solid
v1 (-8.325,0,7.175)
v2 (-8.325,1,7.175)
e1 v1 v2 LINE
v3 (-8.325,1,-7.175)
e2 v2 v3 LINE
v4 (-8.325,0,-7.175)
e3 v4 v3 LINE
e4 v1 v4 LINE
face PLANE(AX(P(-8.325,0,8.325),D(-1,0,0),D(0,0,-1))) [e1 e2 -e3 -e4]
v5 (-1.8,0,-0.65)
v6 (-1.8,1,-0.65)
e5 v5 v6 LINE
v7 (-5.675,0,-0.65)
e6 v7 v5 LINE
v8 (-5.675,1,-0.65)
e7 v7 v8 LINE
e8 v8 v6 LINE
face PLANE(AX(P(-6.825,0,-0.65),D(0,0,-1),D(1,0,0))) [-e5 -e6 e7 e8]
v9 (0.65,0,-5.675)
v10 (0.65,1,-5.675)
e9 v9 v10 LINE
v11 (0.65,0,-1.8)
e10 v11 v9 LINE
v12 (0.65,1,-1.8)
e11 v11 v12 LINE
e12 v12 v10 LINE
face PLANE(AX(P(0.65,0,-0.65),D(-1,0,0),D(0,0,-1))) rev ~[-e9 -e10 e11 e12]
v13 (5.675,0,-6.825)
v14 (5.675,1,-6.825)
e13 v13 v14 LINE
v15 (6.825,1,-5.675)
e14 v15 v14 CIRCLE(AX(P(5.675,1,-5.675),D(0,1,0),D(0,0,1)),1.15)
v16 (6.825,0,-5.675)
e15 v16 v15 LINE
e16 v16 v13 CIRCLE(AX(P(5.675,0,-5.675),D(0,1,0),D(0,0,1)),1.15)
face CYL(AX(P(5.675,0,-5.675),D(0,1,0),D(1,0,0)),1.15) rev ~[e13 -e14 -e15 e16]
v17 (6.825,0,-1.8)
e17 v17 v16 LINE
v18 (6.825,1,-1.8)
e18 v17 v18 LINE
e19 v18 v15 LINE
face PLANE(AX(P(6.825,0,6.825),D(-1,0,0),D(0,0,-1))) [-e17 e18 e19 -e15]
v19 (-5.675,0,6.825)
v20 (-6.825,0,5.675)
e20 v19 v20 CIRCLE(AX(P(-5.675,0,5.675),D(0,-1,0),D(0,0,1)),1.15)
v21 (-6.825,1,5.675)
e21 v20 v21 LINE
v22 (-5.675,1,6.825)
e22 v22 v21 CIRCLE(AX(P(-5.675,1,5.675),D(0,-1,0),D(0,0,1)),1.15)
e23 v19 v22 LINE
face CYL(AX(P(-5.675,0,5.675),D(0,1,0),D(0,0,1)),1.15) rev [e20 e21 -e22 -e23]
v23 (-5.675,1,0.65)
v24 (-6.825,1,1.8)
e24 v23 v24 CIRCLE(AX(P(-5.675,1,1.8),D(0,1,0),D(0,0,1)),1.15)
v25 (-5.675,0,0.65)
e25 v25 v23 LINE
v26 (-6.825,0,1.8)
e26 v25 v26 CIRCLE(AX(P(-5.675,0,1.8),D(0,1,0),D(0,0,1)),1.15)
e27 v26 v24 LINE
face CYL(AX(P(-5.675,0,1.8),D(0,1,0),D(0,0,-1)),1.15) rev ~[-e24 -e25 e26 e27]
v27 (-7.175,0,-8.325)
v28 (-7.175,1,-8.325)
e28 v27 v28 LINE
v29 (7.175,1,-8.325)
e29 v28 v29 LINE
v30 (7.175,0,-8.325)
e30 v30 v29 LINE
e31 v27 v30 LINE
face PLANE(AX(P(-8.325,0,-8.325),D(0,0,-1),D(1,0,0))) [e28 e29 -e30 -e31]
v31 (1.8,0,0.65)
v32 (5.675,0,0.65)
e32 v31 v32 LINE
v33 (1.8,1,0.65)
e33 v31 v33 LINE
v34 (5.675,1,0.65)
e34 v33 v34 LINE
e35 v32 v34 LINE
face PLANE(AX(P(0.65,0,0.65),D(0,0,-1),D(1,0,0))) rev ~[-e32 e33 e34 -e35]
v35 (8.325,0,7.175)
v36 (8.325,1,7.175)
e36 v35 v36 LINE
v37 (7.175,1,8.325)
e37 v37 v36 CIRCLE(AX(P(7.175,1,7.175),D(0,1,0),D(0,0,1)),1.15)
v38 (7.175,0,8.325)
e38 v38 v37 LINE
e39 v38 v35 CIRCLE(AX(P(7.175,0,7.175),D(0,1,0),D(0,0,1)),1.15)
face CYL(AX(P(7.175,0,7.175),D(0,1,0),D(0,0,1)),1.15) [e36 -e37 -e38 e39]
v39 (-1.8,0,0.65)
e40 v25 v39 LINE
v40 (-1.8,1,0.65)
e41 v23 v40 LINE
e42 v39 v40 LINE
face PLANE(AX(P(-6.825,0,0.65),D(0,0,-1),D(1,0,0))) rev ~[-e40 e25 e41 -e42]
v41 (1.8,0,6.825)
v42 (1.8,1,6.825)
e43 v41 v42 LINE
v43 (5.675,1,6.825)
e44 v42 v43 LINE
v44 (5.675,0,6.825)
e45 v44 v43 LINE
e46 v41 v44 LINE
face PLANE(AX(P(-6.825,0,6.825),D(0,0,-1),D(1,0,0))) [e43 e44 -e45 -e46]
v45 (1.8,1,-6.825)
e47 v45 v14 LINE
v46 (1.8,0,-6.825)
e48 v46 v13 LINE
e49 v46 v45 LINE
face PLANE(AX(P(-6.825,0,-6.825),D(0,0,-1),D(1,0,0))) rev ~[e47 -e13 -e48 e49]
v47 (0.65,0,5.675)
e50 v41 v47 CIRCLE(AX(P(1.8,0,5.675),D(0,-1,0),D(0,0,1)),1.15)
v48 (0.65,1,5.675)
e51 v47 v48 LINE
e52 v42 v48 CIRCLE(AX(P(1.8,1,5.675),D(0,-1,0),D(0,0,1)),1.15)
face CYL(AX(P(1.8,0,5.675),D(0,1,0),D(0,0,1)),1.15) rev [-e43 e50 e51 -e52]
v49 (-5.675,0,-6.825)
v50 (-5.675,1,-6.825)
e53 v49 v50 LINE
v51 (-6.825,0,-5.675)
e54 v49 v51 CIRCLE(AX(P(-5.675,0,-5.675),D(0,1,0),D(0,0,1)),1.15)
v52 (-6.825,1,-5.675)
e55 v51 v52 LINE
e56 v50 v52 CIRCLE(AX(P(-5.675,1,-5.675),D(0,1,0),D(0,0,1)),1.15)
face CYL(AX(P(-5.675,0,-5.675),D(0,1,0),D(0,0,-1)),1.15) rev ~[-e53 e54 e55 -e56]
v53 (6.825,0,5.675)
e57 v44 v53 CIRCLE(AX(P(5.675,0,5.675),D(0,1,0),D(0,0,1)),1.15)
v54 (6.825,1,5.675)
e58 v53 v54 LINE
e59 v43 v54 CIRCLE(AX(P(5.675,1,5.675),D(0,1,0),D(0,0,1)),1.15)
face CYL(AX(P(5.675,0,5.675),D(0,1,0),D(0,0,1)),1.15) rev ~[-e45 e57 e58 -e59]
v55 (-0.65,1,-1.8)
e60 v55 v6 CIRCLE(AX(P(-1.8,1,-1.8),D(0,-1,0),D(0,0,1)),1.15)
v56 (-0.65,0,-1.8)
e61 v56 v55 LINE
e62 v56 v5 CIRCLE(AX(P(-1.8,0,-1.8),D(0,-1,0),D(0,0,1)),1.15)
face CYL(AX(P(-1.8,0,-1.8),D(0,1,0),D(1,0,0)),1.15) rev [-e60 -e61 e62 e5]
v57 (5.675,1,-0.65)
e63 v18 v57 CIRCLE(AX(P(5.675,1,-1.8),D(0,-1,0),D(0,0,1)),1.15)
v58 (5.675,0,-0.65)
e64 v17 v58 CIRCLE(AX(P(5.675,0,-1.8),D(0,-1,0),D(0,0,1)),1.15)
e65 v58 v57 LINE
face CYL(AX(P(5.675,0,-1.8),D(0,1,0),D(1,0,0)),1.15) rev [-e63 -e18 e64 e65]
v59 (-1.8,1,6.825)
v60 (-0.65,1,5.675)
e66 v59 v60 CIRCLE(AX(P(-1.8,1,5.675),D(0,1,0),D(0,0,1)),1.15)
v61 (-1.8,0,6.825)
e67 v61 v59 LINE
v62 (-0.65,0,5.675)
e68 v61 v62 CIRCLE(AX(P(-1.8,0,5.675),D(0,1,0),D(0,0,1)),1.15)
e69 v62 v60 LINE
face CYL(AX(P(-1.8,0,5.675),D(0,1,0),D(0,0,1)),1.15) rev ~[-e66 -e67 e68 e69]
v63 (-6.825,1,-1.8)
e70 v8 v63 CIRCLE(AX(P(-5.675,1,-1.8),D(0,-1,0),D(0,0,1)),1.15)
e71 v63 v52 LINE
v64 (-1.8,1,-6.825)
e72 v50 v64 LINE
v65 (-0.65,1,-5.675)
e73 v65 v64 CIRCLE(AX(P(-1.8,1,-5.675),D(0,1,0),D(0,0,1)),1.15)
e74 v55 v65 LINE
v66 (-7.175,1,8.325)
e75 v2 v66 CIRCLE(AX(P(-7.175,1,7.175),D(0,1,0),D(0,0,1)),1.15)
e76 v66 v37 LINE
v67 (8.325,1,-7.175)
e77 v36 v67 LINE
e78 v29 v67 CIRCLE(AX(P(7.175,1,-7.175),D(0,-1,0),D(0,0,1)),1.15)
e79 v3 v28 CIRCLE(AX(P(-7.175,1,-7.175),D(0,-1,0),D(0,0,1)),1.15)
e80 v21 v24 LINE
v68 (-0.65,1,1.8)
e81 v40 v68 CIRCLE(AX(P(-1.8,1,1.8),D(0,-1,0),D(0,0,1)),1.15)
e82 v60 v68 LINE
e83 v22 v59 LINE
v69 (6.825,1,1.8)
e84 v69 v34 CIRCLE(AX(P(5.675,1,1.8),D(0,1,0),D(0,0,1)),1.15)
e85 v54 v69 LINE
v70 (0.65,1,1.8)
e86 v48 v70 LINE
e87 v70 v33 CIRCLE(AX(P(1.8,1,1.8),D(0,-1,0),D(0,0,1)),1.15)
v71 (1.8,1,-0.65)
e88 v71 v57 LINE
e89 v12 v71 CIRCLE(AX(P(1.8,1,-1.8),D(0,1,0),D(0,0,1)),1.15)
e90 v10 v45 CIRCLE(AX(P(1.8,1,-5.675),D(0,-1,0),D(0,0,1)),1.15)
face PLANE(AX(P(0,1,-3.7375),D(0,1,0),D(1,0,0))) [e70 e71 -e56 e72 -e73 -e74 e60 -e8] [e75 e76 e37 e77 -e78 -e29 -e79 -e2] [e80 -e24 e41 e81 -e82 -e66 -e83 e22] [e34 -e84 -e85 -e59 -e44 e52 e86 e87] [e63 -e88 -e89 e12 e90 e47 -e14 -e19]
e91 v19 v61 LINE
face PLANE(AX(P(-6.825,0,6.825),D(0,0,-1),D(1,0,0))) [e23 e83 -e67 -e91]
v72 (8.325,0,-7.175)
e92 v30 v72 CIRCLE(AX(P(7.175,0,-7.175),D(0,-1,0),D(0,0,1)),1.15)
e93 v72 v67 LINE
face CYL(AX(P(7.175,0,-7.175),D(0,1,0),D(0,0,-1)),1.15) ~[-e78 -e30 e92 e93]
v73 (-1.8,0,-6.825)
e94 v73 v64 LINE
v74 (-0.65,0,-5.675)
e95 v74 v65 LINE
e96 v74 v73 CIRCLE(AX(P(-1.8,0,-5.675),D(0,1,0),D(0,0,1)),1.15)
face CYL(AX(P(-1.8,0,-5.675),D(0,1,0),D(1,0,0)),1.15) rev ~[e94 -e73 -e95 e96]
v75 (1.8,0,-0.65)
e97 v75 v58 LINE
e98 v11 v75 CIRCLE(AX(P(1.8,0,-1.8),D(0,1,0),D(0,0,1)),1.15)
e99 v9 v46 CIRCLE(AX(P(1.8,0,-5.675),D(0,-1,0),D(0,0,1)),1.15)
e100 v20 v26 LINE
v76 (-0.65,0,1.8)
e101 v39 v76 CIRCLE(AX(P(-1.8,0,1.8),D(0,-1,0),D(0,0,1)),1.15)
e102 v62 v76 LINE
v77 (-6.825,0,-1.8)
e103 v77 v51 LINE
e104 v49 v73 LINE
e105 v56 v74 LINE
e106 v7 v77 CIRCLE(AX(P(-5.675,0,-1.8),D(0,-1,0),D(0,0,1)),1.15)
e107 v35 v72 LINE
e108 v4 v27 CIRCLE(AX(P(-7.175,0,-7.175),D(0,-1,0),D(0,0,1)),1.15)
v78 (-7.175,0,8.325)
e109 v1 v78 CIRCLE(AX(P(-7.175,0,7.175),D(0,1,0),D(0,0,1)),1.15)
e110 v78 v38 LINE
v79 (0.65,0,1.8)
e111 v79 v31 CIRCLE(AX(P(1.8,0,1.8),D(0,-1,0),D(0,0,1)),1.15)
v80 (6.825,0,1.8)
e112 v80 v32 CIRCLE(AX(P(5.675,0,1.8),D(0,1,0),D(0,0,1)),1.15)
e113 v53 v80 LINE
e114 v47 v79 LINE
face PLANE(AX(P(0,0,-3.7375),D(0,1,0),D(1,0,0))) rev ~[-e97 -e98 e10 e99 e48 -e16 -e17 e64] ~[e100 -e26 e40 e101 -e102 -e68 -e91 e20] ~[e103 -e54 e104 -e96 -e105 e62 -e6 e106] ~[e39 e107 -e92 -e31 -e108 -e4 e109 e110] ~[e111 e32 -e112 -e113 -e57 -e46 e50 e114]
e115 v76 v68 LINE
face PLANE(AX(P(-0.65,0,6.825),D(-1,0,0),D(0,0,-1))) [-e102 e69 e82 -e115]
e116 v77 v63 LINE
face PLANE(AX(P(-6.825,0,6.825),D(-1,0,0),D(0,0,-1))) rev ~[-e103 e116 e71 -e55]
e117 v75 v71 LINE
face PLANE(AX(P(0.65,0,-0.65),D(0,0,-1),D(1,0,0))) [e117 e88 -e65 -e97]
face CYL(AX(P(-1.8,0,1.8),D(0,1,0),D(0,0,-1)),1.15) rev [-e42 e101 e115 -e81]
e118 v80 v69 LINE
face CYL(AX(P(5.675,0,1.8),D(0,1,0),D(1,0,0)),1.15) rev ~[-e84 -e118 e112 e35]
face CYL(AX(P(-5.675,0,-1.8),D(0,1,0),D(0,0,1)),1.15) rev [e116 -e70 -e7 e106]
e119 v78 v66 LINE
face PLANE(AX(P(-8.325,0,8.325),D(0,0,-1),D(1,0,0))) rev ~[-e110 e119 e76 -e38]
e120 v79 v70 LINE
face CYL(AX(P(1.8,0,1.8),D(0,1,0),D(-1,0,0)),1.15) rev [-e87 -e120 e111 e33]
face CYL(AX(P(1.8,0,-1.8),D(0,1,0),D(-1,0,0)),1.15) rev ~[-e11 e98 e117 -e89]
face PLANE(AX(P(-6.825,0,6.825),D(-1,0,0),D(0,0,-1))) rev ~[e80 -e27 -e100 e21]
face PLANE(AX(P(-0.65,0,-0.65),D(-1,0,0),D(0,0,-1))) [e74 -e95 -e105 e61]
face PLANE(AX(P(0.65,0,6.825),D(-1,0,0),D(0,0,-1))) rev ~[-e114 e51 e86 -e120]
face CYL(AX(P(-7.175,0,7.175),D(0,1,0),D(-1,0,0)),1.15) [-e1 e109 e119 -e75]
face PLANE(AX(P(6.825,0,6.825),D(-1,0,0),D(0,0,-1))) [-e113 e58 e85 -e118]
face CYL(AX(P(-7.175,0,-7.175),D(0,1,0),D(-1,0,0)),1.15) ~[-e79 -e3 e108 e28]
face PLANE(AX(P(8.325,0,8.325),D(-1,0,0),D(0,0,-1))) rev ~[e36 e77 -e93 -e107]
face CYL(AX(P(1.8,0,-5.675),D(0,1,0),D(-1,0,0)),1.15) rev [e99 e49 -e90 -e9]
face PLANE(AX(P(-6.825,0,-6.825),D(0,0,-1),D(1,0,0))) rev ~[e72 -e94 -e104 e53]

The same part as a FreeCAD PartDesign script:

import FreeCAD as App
import Part
import Sketcher
from FreeCAD import Vector


def edges_at(feature, points):
    """Names of the edges that pass closest to the given points."""
    edges = feature.Shape.Edges
    near = lambda p: min(range(len(edges)), key=lambda i: edges[i].distToShape(Part.Vertex(*p))[0])
    return sorted({f"Edge{near(p) + 1}" for p in points})


def add_polygon(sketch, points):
    """Adds a closed chain of lines whose ends are joined by coincident constraints."""
    first, n = sketch.GeometryCount, len(points)
    for a, b in zip(points, points[1:] + points[:1]):
        sketch.addGeometry(Part.LineSegment(App.Vector(*a, 0), App.Vector(*b, 0)), False)
    for i in range(n):
        sketch.addConstraint(Sketcher.Constraint("Coincident", first + i, 2, first + (i + 1) % n, 1))

doc = App.newDocument("Part")
body = doc.addObject("PartDesign::Body", "Body")

# Sketch on XZ plane
sketch1 = body.newObject("Sketcher::SketchObject", "Sketch")
sketch1.AttachmentSupport = (doc.getObject("XZ_Plane"), [""])
sketch1.MapMode = "FlatFace"
add_polygon(sketch1, [(-8, -8), (-8, 8), (8, 8), (8, -8)])  # lines 0-3
add_polygon(sketch1, [(-1, 7), (-7, 7), (-7, 1), (-1, 1)])  # lines 4-7
add_polygon(sketch1, [(7, 7), (1, 7), (1, 1), (7, 1)])  # lines 8-11
add_polygon(sketch1, [(7, -7), (7, -1), (1, -1), (1, -7)])  # lines 12-15
add_polygon(sketch1, [(-7, -7), (-1, -7), (-1, -1), (-7, -1)])  # lines 16-19
sketch1.addConstraint(Sketcher.Constraint("Vertical", 0))
sketch1.addConstraint(Sketcher.Constraint("Horizontal", 1))
sketch1.addConstraint(Sketcher.Constraint("Vertical", 2))
sketch1.addConstraint(Sketcher.Constraint("Horizontal", 3))
sketch1.addConstraint(Sketcher.Constraint("Horizontal", 4))
sketch1.addConstraint(Sketcher.Constraint("Vertical", 5))
sketch1.addConstraint(Sketcher.Constraint("Horizontal", 6))
sketch1.addConstraint(Sketcher.Constraint("Vertical", 7))
sketch1.addConstraint(Sketcher.Constraint("Horizontal", 8))
sketch1.addConstraint(Sketcher.Constraint("Vertical", 9))
sketch1.addConstraint(Sketcher.Constraint("Horizontal", 10))
sketch1.addConstraint(Sketcher.Constraint("Vertical", 11))
sketch1.addConstraint(Sketcher.Constraint("Vertical", 12))
sketch1.addConstraint(Sketcher.Constraint("Horizontal", 13))
sketch1.addConstraint(Sketcher.Constraint("Vertical", 14))
sketch1.addConstraint(Sketcher.Constraint("Horizontal", 15))
sketch1.addConstraint(Sketcher.Constraint("Horizontal", 16))
sketch1.addConstraint(Sketcher.Constraint("Vertical", 17))
sketch1.addConstraint(Sketcher.Constraint("Horizontal", 18))
sketch1.addConstraint(Sketcher.Constraint("Vertical", 19))
sketch1.addConstraint(Sketcher.Constraint("Symmetric", 0, 2, 2, 2, -1, 1))
sketch1.addConstraint(Sketcher.Constraint("Symmetric", 5, 2, 12, 2, -1, 1))
sketch1.addConstraint(Sketcher.Constraint("Symmetric", 7, 2, 14, 2, -1, 1))
sketch1.addConstraint(Sketcher.Constraint("Symmetric", 8, 2, 16, 2, -1, 1))
sketch1.addConstraint(Sketcher.Constraint("Symmetric", 10, 2, 18, 2, -1, 1))
sketch1.addConstraint(Sketcher.Constraint("Symmetric", 7, 2, 8, 2, -2))
sketch1.addConstraint(Sketcher.Constraint("Symmetric", 5, 2, 10, 2, -2))
sketch1.addConstraint(Sketcher.Constraint("Equal", 3, 0))
sketch1.addConstraint(Sketcher.Constraint("Equal", 18, 5))
sketch1.addConstraint(Sketcher.Constraint("DistanceX", 1, 1, 1, 2, 16.65))
sketch1.addConstraint(Sketcher.Constraint("DistanceX", 0, 2, 4, 2, 1.5))
sketch1.addConstraint(Sketcher.Constraint("DistanceY", 4, 2, 0, 2, 1.5))
sketch1.addConstraint(Sketcher.Constraint("DistanceX", 7, 2, 8, 2, 1.3))
pad1 = body.newObject("PartDesign::Pad", "Pad")
pad1.Profile = sketch1
pad1.Length = 1
pad1.Reversed = True
doc.recompute()

fillet = body.newObject("PartDesign::Fillet", "Fillet")
fillet.Base = (pad1, edges_at(pad1, [
    (-6.825, 0.5, 0.65),
    (-6.825, 0.5, 6.825),
    (-0.65, 0.5, 6.825),
    (-0.65, 0.5, 0.65),
    (-8.325, 0.5, 8.325),
    (-8.325, 0.5, -8.325),
    (8.325, 0.5, -8.325),
    (8.325, 0.5, 8.325),
    (-0.65, 0.5, -6.825),
    (-6.825, 0.5, -6.825),
    (-6.825, 0.5, -0.65),
    (-0.65, 0.5, -0.65),
    (0.65, 0.5, 6.825),
    (6.825, 0.5, 6.825),
    (6.825, 0.5, 0.65),
    (0.65, 0.5, 0.65),
    (6.825, 0.5, -0.65),
    (6.825, 0.5, -6.825),
    (0.65, 0.5, -6.825),
    (0.65, 0.5, -0.65),
]))
fillet.Radius = 1.15

doc.recompute()
